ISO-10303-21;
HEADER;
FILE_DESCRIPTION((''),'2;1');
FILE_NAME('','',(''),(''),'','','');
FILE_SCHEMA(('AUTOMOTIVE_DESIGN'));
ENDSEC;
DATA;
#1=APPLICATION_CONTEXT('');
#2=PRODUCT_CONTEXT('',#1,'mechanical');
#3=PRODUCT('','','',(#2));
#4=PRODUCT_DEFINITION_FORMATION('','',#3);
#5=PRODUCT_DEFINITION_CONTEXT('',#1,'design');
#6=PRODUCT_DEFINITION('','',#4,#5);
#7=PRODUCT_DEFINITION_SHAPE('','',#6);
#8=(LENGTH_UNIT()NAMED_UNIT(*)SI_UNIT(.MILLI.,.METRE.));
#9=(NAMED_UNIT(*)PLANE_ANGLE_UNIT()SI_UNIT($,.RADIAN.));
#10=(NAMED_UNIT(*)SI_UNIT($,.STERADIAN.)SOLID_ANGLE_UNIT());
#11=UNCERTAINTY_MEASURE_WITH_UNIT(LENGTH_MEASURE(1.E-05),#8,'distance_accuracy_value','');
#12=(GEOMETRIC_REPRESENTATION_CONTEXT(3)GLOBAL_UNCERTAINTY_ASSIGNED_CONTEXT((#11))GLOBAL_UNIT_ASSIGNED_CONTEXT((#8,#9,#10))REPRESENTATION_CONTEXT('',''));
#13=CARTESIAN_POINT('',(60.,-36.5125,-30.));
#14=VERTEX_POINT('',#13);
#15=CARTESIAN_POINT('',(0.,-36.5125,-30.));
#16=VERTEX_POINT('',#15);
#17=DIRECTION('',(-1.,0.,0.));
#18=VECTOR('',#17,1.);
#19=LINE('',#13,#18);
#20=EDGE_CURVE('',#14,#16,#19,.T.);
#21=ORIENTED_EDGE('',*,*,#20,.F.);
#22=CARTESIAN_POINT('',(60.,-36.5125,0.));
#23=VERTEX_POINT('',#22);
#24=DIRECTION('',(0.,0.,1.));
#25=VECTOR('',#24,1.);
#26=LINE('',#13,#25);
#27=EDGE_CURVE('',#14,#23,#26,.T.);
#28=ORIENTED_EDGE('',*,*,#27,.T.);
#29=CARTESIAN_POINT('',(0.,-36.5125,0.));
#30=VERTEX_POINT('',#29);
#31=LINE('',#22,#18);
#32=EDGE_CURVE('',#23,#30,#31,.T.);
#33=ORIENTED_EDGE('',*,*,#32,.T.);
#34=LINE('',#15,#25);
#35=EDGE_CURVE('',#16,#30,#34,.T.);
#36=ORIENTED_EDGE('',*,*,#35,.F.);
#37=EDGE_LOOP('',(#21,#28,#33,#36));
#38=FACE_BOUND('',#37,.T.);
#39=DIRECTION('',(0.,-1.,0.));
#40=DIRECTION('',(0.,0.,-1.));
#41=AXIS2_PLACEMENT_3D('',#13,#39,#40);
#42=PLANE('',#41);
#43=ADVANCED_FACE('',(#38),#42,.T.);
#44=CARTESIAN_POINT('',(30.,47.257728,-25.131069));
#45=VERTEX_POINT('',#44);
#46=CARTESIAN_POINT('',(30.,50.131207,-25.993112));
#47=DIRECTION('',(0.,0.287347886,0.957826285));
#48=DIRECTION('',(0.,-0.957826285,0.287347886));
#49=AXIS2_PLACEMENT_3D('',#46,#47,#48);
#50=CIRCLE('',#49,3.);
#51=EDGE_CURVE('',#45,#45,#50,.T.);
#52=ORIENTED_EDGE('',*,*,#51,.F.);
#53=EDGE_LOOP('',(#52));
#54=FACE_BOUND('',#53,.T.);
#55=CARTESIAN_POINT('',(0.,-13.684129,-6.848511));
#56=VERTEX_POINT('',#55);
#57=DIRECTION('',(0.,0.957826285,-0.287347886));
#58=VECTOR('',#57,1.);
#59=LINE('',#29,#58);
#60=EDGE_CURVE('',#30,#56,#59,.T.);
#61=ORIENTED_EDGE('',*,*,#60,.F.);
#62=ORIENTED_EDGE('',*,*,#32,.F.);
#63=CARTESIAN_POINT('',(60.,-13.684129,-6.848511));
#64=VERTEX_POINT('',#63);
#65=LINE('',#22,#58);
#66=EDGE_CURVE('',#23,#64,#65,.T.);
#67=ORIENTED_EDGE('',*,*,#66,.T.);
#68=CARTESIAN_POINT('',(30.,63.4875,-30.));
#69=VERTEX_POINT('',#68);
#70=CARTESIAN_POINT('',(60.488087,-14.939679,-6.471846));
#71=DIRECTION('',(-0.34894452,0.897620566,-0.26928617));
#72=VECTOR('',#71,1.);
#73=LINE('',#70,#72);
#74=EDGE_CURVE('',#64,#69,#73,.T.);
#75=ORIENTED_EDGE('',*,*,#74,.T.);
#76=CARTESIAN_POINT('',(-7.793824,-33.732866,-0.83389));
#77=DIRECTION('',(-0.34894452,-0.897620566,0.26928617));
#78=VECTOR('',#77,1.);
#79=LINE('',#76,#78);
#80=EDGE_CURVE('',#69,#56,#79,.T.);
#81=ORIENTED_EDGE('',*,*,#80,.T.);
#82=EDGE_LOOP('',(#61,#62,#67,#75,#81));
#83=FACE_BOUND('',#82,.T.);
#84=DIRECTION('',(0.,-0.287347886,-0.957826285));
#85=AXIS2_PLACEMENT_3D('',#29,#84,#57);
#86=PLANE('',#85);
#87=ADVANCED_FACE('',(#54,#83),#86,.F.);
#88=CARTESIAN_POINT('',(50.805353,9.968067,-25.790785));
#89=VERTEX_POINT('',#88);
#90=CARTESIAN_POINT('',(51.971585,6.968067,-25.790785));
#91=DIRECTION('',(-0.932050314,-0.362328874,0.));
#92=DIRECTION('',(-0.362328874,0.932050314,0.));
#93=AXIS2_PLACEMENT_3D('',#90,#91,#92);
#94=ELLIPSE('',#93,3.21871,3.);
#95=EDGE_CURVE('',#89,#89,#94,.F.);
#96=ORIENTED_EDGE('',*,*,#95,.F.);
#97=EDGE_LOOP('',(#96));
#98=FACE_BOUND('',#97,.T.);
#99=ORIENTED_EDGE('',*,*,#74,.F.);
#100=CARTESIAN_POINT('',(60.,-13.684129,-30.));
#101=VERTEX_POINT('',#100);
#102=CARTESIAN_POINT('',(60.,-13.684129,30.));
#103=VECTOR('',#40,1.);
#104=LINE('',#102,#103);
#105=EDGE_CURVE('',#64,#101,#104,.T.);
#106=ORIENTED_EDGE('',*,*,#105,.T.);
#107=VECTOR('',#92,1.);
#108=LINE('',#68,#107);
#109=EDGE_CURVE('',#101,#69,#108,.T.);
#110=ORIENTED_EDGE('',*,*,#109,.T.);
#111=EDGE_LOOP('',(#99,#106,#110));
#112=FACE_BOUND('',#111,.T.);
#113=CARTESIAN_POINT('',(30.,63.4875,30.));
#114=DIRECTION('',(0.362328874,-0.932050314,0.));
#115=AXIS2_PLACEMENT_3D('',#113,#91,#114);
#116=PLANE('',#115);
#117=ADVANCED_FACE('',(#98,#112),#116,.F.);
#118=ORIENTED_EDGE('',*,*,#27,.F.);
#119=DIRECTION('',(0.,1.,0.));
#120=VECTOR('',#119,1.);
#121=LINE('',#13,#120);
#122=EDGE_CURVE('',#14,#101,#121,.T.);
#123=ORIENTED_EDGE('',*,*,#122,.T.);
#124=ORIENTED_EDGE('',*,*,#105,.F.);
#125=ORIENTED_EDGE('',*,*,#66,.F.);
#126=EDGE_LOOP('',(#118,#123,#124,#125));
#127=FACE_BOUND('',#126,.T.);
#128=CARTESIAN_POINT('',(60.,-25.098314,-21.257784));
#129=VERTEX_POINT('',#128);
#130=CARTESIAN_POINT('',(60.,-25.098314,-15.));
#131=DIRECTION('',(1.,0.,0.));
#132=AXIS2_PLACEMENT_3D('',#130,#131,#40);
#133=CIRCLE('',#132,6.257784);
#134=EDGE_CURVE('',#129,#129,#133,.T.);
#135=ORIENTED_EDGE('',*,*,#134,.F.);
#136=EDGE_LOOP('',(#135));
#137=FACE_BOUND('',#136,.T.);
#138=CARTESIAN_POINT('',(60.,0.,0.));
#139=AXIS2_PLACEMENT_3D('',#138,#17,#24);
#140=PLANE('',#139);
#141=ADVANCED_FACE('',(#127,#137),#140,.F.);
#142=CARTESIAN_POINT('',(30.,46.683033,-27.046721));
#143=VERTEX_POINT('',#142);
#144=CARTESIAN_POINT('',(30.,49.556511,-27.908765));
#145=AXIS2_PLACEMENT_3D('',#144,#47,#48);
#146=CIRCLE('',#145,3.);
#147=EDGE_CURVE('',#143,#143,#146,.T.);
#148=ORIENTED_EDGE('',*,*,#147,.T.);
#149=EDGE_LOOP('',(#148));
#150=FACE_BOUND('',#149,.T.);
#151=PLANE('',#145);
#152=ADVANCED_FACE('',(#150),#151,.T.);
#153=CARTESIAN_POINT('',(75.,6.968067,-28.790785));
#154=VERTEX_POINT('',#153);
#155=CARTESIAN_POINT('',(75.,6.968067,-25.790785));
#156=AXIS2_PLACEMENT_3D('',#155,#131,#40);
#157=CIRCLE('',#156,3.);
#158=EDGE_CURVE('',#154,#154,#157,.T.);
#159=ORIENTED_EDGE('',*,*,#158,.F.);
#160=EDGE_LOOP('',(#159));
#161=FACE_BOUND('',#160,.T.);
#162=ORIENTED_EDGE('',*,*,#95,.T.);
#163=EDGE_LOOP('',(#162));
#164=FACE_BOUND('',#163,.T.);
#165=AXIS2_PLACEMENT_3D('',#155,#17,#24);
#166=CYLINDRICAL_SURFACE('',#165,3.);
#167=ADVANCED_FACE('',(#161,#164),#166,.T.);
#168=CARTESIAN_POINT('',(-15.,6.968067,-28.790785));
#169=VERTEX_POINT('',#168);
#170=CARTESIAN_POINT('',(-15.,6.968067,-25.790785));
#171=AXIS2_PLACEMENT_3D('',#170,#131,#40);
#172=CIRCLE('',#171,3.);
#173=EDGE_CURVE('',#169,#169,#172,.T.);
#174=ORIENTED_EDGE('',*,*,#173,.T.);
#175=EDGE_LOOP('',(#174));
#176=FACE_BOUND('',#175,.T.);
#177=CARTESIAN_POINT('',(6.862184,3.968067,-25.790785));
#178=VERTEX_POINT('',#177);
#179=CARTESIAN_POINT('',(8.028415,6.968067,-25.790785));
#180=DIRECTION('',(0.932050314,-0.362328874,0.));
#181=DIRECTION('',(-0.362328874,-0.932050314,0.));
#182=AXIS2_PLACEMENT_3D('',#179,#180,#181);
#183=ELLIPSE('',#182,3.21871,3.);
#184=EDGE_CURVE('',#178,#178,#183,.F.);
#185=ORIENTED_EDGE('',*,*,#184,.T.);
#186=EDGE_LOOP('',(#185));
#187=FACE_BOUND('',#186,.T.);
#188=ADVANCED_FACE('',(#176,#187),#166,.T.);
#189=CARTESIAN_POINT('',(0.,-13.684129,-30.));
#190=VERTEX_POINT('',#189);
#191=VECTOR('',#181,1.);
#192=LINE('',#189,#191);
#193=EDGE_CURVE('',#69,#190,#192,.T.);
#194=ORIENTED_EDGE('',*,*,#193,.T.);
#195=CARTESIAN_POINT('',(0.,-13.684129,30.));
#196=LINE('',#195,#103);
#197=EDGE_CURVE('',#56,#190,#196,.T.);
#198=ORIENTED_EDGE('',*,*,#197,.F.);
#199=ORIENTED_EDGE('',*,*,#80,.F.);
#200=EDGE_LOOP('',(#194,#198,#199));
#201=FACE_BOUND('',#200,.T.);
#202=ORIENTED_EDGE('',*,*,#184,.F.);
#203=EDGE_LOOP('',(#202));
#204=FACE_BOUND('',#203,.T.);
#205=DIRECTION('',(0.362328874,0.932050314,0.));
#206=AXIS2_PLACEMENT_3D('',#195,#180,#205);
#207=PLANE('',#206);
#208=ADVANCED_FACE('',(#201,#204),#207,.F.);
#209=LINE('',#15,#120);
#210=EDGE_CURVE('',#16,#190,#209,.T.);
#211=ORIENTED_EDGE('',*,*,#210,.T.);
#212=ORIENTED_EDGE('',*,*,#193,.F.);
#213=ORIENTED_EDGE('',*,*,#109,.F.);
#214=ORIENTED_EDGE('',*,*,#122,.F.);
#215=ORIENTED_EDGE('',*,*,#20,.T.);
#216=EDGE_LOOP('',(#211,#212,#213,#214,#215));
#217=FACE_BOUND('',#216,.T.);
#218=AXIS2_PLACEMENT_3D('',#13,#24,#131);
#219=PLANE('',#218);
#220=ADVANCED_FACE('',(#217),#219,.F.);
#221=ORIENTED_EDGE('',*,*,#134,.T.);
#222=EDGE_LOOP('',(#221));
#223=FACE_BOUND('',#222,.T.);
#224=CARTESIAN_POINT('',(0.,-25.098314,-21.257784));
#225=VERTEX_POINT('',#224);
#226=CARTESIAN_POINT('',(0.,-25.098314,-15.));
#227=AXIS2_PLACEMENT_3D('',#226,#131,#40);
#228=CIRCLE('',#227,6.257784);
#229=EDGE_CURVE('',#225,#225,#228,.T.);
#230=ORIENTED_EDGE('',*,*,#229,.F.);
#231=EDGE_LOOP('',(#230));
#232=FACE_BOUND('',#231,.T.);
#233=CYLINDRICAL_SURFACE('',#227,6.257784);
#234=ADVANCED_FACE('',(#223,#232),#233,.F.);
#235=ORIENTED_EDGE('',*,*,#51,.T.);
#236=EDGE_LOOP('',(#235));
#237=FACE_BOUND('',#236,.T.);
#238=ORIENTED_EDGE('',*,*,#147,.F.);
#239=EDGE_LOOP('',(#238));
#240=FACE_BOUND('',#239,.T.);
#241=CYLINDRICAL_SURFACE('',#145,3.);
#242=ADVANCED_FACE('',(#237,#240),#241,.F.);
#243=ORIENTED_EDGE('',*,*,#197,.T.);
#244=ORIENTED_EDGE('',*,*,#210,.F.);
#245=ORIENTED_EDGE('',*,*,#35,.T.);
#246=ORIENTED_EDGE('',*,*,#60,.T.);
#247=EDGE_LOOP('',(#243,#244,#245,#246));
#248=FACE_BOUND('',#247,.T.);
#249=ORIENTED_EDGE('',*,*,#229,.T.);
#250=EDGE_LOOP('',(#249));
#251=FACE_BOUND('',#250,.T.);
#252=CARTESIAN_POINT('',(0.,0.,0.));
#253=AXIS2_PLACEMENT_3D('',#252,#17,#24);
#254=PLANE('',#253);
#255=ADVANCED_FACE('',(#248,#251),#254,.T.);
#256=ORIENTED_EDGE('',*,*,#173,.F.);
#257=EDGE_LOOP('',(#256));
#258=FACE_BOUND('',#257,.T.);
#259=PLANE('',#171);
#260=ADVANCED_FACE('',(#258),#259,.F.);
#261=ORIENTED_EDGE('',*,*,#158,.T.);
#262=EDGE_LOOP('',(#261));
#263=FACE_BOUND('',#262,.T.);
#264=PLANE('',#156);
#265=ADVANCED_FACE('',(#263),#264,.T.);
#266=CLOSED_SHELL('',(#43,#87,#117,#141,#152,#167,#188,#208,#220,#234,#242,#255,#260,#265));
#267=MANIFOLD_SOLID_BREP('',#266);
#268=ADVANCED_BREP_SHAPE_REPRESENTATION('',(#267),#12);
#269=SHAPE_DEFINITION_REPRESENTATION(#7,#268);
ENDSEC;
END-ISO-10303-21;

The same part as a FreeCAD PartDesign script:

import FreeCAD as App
import Part
import Sketcher
Q = App.Units.Quantity

doc = App.newDocument("Part")
body = doc.addObject("PartDesign::Body", "Body")

# Sketch on YZ plane
sketch1 = body.newObject("Sketcher::SketchObject", "Sketch")
sketch1.AttachmentSupport = (doc.getObject("YZ_Plane"), [""])
sketch1.MapMode = "FlatFace"
sketch1.addGeometry([
    Part.LineSegment(App.Vector(63, 0, 0), App.Vector(-37, 0, 0)),
    Part.LineSegment(App.Vector(-37, 0, 0), App.Vector(-37, -30, 0)),
    Part.LineSegment(App.Vector(-37, -30, 0), App.Vector(63, -30, 0)),
    Part.LineSegment(App.Vector(63, -30, 0), App.Vector(63, 0, 0)),
], False)
sketch1.addConstraint([
    Sketcher.Constraint("Coincident", 0, 2, 1, 1),
    Sketcher.Constraint("Coincident", 1, 2, 2, 1),
    Sketcher.Constraint("Coincident", 2, 2, 3, 1),
    Sketcher.Constraint("Coincident", 3, 2, 0, 1),
    Sketcher.Constraint("Horizontal", 0),
    Sketcher.Constraint("Vertical", 1),
    Sketcher.Constraint("Horizontal", 2),
    Sketcher.Constraint("Vertical", 3),
    Sketcher.Constraint("PointOnObject", 0, 2, -1),
    Sketcher.Constraint("DistanceX", 0, 2, 0, 1, Q("100 mm")),
    Sketcher.Constraint("DistanceY", 1, 2, 1, 1, Q("30 mm")),
    Sketcher.Constraint("DistanceX", 0, 2, -1, 1, Q("36.5125 mm")),
])
pad1 = body.newObject("PartDesign::Pad", "Pad")
pad1.Profile = sketch1
pad1.Length = 60

# Sketch on YZ plane
sketch2 = body.newObject("Sketcher::SketchObject", "Sketch001")
sketch2.AttachmentSupport = (doc.getObject("YZ_Plane"), [""])
sketch2.MapMode = "FlatFace"
sketch2.AttachmentOffset = App.Placement(App.Vector(0, 0, 60), App.Rotation())
sketch2.addGeometry([
    Part.LineSegment(App.Vector(63, 0, 0), App.Vector(-37, 0, 0)),
    Part.LineSegment(App.Vector(-37, 0, 0), App.Vector(63, -30, 0)),
    Part.LineSegment(App.Vector(63, -30, 0), App.Vector(63, 0, 0)),
], False)
sketch2.addConstraint([
    Sketcher.Constraint("Coincident", 0, 2, 1, 1),
    Sketcher.Constraint("Coincident", 1, 2, 2, 1),
    Sketcher.Constraint("Coincident", 2, 2, 0, 1),
    Sketcher.Constraint("Horizontal", 0),
    Sketcher.Constraint("Vertical", 2),
    Sketcher.Constraint("PointOnObject", 0, 2, -1),
    Sketcher.Constraint("DistanceX", 0, 2, 0, 1, Q("100 mm")),
    Sketcher.Constraint("DistanceY", 2, 1, 2, 2, Q("30 mm")),
    Sketcher.Constraint("DistanceX", 0, 2, -1, 1, Q("36.5125 mm")),
])
pocket1 = body.newObject("PartDesign::Pocket", "Pocket")
pocket1.Profile = sketch2
pocket1.Length = 60

# Sketch on XY plane
sketch3 = body.newObject("Sketcher::SketchObject", "Sketch002")
sketch3.AttachmentSupport = (doc.getObject("XY_Plane"), [""])
sketch3.MapMode = "FlatFace"
sketch3.AttachmentOffset = App.Placement(App.Vector(0, 0, -30), App.Rotation())
sketch3.addGeometry([
    Part.LineSegment(App.Vector(60, -14, 0), App.Vector(30, 63, 0)),
    Part.LineSegment(App.Vector(30, 63, 0), App.Vector(60, 63, 0)),
    Part.LineSegment(App.Vector(60, 63, 0), App.Vector(60, -14, 0)),
], False)
sketch3.addConstraint([
    Sketcher.Constraint("Coincident", 0, 2, 1, 1),
    Sketcher.Constraint("Coincident", 1, 2, 2, 1),
    Sketcher.Constraint("Coincident", 2, 2, 0, 1),
    Sketcher.Constraint("Horizontal", 1),
    Sketcher.Constraint("Vertical", 2),
    Sketcher.Constraint("DistanceX", 1, 1, 1, 2, Q("30 mm")),
    Sketcher.Constraint("DistanceX", -1, 1, 0, 2, Q("30 mm")),
    Sketcher.Constraint("DistanceY", 2, 2, 2, 1, Q("77.171629 mm")),
    Sketcher.Constraint("DistanceY", -1, 1, 0, 2, Q("63.4875 mm")),
])
pocket2 = body.newObject("PartDesign::Pocket", "Pocket001")
pocket2.Profile = sketch3
pocket2.Length = 60
pocket2.Reversed = True

# Sketch on XY plane
sketch4 = body.newObject("Sketcher::SketchObject", "Sketch003")
sketch4.AttachmentSupport = (doc.getObject("XY_Plane"), [""])
sketch4.MapMode = "FlatFace"
sketch4.AttachmentOffset = App.Placement(App.Vector(0, 0, -30), App.Rotation())
sketch4.addGeometry([
    Part.LineSegment(App.Vector(0, 63, 0), App.Vector(30, 63, 0)),
    Part.LineSegment(App.Vector(30, 63, 0), App.Vector(0, -14, 0)),
    Part.LineSegment(App.Vector(0, -14, 0), App.Vector(0, 63, 0)),
], False)
sketch4.addConstraint([
    Sketcher.Constraint("Coincident", 0, 2, 1, 1),
    Sketcher.Constraint("Coincident", 1, 2, 2, 1),
    Sketcher.Constraint("Coincident", 2, 2, 0, 1),
    Sketcher.Constraint("Horizontal", 0),
    Sketcher.Constraint("Vertical", 2),
    Sketcher.Constraint("PointOnObject", 1, 2, -2),
    Sketcher.Constraint("DistanceX", 0, 1, 0, 2, Q("30 mm")),
    Sketcher.Constraint("DistanceY", 2, 1, 2, 2, Q("77.171629 mm")),
    Sketcher.Constraint("DistanceY", -1, 1, 0, 2, Q("63.4875 mm")),
])
pocket3 = body.newObject("PartDesign::Pocket", "Pocket002")
pocket3.Profile = sketch4
pocket3.Length = 60
pocket3.Reversed = True

# Sketch on YZ plane
sketch5 = body.newObject("Sketcher::SketchObject", "Sketch004")
sketch5.AttachmentSupport = (doc.getObject("YZ_Plane"), [""])
sketch5.MapMode = "FlatFace"
sketch5.AttachmentOffset = App.Placement(App.Vector(0, 0, 60), App.Rotation())
sketch5.addGeometry(Part.Circle(App.Vector(-25, -15, 0), App.Vector(0, 0, 1), 6), False)
sketch5.addConstraint([
    Sketcher.Constraint("DistanceY", 0, 3, -1, 1, Q("15 mm")),
    Sketcher.Constraint("Diameter", 0, Q("12.515569 mm")),
    Sketcher.Constraint("DistanceX", 0, 3, -1, 1, Q("25.098314 mm")),
])
pocket4 = body.newObject("PartDesign::Pocket", "Pocket003")
pocket4.Profile = sketch5
pocket4.Type = "ThroughAll"

# Sketch on an angled plane
sketch6 = body.newObject("Sketcher::SketchObject", "Sketch005")
sketch6.Placement = App.Placement(App.Vector(0, -3.014794, -10.049312), App.Rotation(App.Vector(1, 0, 0), App.Vector(0, 0.957826285, -0.287347886), App.Vector(0, 0.287347886, 0.957826285), "ZXY"))
sketch6.addGeometry(Part.Circle(App.Vector(30, 55.5, 0), App.Vector(0, 0, 1), 3), False)
sketch6.addConstraint([
    Sketcher.Constraint("Diameter", 0, Q("6 mm")),
    Sketcher.Constraint("DistanceX", -1, 1, 0, 3, Q("30 mm")),
    Sketcher.Constraint("DistanceY", -1, 1, 0, 3, Q("55.486054 mm")),
])
pocket5 = body.newObject("PartDesign::Pocket", "Pocket004")
pocket5.Profile = sketch6
pocket5.Length = 2

# Sketch on YZ plane
sketch7 = body.newObject("Sketcher::SketchObject", "Sketch006")
sketch7.AttachmentSupport = (doc.getObject("YZ_Plane"), [""])
sketch7.MapMode = "FlatFace"
sketch7.AttachmentOffset = App.Placement(App.Vector(0, 0, -15), App.Rotation())
sketch7.addGeometry(Part.Circle(App.Vector(7, -25.8, 0), App.Vector(0, 0, 1), 3), False)
sketch7.addConstraint([
    Sketcher.Constraint("Diameter", 0, Q("6 mm")),
    Sketcher.Constraint("DistanceX", -1, 1, 0, 3, Q("6.968067 mm")),
    Sketcher.Constraint("DistanceY", 0, 3, -1, 1, Q("25.790785 mm")),
])
pad2 = body.newObject("PartDesign::Pad", "Pad001")
pad2.Profile = sketch7
pad2.Length = 90

doc.recompute()
